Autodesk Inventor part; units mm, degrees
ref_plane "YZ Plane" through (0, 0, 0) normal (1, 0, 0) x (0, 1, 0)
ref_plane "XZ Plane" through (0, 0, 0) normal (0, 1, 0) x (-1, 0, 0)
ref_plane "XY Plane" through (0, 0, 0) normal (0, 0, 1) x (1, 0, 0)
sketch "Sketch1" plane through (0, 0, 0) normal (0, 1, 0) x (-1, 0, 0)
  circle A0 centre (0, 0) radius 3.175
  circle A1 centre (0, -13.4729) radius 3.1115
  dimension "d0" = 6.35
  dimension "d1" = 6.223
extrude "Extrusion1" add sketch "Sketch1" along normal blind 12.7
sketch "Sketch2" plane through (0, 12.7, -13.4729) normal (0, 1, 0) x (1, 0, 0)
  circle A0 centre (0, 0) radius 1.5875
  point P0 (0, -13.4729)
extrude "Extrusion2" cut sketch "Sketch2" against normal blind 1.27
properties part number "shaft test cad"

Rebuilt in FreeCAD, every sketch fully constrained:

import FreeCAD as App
import Part
import Sketcher
from FreeCAD import Vector
Q = App.Units.Quantity

doc = App.newDocument("Part")
body = doc.addObject("PartDesign::Body", "Body")
body.AllowCompound = True

# Sketch on XZ plane
sketch1 = doc.addObject("Sketcher::SketchObject", "Sketch")
body.addObject(sketch1)
sketch1.AttachmentSupport = (doc.XZ_Plane, [""])
sketch1.MapMode = "FlatFace"
sketch1.addGeometry([
    Part.Circle(Vector(0, 0, 0), Vector(0, 0, 1), 3.2),
    Part.Circle(Vector(0, -13.5, 0), Vector(0, 0, 1), 3.1),
], False)
sketch1.addConstraint([
    Sketcher.Constraint("Coincident", 0, 3, -1, 1),
    Sketcher.Constraint("PointOnObject", 1, 3, -2),
    Sketcher.Constraint("Diameter", 0, Q("0.25 in")),
    Sketcher.Constraint("Diameter", 1, Q("0.245 in")),
    Sketcher.Constraint("DistanceY", 1, 3, -1, 1, Q("13.473 mm")),
])
pad1 = doc.addObject("PartDesign::Pad", "Pad")
body.addObject(pad1)
pad1.Profile = sketch1
pad1.Length = Q("0.5 in")
pad1.Reversed = True

# Sketch on XZ plane
sketch2 = doc.addObject("Sketcher::SketchObject", "Sketch001")
body.addObject(sketch2)
sketch2.AttachmentSupport = (doc.XZ_Plane, [""])
sketch2.MapMode = "FlatFace"
sketch2.AttachmentOffset = App.Placement(Vector(0, 0, -0.5 * 25.4), App.Rotation())
sketch2.addGeometry(Part.Circle(Vector(0, -13.5, 0), Vector(0, 0, 1), 1.6), False)
sketch2.addConstraint([
    Sketcher.Constraint("PointOnObject", 0, 3, -2),
    Sketcher.Constraint("Diameter", 0, Q("0.125 in")),
    Sketcher.Constraint("DistanceY", 0, 3, -1, 1, Q("13.473 mm")),
])
pocket1 = doc.addObject("PartDesign::Pocket", "Pocket")
body.addObject(pocket1)
pocket1.Profile = sketch2
pocket1.Length = Q("0.05 in")
pocket1.Reversed = True

doc.recompute()
